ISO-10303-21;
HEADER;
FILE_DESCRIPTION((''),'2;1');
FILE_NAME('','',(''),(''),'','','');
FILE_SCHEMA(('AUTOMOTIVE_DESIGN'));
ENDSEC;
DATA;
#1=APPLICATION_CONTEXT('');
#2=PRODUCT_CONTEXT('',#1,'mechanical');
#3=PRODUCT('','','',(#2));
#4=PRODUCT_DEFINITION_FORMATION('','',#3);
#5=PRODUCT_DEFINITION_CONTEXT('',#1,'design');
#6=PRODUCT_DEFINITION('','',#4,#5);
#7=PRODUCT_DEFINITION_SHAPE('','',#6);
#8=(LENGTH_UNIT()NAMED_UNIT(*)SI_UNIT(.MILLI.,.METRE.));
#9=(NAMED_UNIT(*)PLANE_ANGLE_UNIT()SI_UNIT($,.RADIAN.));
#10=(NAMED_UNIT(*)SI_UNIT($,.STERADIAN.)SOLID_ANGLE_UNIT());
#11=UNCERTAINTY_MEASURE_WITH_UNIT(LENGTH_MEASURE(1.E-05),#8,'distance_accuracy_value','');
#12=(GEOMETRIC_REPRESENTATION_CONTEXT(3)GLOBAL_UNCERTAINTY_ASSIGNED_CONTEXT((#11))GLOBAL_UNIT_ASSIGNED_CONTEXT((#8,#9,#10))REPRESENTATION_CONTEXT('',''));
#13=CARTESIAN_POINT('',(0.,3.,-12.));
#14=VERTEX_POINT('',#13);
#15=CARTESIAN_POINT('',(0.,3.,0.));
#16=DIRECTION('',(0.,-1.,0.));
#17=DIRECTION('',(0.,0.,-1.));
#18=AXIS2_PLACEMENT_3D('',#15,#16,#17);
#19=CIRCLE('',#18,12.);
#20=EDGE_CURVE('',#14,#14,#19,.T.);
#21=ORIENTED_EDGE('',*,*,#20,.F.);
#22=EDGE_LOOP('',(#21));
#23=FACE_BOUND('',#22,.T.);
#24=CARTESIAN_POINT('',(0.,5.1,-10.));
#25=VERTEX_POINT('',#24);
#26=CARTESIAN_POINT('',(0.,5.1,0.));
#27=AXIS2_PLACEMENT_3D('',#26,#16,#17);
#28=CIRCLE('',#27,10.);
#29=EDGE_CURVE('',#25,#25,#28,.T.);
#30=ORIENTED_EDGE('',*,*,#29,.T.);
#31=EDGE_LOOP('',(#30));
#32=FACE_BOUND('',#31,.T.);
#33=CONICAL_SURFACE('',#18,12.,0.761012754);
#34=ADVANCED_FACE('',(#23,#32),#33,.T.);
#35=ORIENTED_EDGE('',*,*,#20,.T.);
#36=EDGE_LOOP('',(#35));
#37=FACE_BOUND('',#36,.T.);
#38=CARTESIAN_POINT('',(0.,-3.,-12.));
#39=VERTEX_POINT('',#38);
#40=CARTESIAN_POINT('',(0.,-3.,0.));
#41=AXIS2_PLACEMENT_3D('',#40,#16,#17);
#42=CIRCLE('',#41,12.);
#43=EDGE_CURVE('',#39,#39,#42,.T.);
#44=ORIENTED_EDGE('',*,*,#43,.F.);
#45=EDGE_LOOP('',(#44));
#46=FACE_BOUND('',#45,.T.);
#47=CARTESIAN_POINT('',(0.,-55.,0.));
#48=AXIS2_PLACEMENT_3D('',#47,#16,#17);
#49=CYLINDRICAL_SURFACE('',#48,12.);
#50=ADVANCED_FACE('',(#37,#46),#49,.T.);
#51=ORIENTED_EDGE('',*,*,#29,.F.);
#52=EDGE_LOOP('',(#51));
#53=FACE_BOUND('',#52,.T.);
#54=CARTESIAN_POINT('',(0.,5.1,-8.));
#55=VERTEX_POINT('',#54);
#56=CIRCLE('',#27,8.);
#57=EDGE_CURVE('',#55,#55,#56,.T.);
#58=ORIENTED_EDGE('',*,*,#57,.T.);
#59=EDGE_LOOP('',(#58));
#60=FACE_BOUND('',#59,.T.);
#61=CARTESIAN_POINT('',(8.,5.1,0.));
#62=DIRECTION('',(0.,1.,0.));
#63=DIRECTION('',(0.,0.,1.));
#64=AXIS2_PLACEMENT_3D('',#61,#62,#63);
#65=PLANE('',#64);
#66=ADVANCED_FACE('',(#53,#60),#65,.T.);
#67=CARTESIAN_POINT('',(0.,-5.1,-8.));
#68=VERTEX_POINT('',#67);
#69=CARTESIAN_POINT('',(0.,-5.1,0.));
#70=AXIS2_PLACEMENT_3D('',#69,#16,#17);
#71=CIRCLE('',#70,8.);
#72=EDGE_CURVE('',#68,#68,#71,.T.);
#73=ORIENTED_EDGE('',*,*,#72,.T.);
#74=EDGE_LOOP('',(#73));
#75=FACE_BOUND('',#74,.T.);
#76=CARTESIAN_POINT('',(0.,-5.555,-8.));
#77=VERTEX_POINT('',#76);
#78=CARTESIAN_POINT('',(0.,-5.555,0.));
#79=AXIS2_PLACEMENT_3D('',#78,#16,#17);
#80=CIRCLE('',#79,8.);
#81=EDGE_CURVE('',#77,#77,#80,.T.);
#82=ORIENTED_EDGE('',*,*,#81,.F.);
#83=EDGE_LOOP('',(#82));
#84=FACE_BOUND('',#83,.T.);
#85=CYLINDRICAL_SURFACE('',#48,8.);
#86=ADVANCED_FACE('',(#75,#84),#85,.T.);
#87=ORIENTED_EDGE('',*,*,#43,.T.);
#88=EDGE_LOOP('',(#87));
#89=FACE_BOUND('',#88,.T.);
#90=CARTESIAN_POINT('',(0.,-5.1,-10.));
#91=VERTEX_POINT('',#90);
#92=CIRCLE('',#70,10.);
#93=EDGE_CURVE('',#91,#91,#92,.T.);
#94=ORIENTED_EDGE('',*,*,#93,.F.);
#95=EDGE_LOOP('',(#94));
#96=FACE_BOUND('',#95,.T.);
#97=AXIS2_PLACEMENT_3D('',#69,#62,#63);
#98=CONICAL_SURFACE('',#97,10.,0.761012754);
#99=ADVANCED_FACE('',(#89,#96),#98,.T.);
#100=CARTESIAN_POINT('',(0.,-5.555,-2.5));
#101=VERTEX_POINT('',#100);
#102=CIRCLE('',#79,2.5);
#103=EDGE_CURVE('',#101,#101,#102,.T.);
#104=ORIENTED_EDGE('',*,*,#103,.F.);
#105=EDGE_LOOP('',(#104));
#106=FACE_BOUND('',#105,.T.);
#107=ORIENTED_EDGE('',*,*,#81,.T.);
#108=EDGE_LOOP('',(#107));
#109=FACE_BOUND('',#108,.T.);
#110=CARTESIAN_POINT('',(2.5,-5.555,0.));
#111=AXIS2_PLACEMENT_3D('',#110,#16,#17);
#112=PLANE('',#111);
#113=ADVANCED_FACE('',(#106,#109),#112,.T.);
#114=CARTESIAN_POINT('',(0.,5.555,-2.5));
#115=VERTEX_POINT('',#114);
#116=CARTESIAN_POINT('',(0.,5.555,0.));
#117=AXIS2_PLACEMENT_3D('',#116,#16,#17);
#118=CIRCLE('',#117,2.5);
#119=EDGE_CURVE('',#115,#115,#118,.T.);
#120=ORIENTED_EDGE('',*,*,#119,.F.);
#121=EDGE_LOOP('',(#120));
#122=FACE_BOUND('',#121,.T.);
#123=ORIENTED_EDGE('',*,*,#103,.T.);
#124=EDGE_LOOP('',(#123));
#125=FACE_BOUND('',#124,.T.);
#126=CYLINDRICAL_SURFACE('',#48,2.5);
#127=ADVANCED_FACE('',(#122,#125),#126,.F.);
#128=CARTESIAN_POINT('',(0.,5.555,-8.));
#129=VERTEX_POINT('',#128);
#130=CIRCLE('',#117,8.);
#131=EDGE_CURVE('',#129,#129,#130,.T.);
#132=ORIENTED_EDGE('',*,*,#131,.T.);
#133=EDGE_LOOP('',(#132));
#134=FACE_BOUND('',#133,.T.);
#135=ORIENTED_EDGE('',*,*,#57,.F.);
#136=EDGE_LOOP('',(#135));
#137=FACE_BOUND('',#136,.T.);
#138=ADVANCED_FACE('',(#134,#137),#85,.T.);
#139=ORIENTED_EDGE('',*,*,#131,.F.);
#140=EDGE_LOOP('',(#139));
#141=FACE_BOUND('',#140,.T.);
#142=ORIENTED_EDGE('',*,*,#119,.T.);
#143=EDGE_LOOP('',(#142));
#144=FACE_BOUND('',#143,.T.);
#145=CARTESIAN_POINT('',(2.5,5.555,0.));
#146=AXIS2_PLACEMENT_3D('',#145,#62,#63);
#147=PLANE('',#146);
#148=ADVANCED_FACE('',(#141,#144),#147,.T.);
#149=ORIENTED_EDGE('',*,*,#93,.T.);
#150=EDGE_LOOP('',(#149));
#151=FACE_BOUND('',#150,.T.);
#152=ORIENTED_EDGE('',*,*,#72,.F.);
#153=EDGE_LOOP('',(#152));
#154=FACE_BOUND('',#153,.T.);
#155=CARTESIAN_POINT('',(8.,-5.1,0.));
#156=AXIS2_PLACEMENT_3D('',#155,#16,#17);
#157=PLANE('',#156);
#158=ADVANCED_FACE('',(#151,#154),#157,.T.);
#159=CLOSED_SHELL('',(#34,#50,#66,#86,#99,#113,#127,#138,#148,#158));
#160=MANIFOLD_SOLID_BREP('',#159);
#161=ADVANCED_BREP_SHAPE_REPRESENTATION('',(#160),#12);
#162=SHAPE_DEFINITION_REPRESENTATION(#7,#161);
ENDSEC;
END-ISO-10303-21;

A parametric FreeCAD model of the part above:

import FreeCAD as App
import Part
import Sketcher
from FreeCAD import Vector
Q = App.Units.Quantity


def add_polygon(sketch, points):
    """Adds a closed chain of lines whose ends are joined by coincident constraints."""
    first, n = sketch.GeometryCount, len(points)
    for a, b in zip(points, points[1:] + points[:1]):
        sketch.addGeometry(Part.LineSegment(App.Vector(*a, 0), App.Vector(*b, 0)), False)
    for i in range(n):
        sketch.addConstraint(Sketcher.Constraint("Coincident", first + i, 2, first + (i + 1) % n, 1))

doc = App.newDocument("Part")
body = doc.addObject("PartDesign::Body", "Body")

sketch1 = body.newObject("Sketcher::SketchObject", "Sketch")
sketch1.AttachmentSupport = (doc.getObject("XY_Plane"), [""])
sketch1.MapMode = "FlatFace"
add_polygon(sketch1, [(2.5, 5.55), (2.5, -5.55), (8, -5.55), (8, -5.1), (10, -5.1), (12, -3), (12, 3), (10, 5.1), (8, 5.1), (8, 5.55)])
sketch1.addConstraint([
    Sketcher.Constraint("Vertical", 0),
    Sketcher.Constraint("Horizontal", 1),
    Sketcher.Constraint("Vertical", 2),
    Sketcher.Constraint("Horizontal", 3),
    Sketcher.Constraint("Vertical", 5),
    Sketcher.Constraint("Horizontal", 7),
    Sketcher.Constraint("Vertical", 8),
    Sketcher.Constraint("Horizontal", 9),
    Sketcher.Constraint("Symmetric", 3, 2, 6, 2, -1),
    Sketcher.Constraint("Symmetric", 1, 2, 8, 2, -1),
    Sketcher.Constraint("Equal", 4, 6),
    Sketcher.Constraint("DistanceX", 3, 1, 3, 2, Q("2 mm")),
    Sketcher.Constraint("DistanceY", 5, 1, 5, 2, Q("6 mm")),
    Sketcher.Constraint("DistanceX", 1, 1, 1, 2, Q("5.5 mm")),
    Sketcher.Constraint("DistanceX", -1, 1, 1, 2, Q("8 mm")),
    Sketcher.Constraint("DistanceX", -1, 1, 4, 2, Q("12 mm")),
    Sketcher.Constraint("Distance", 4, Q("2.9 mm")),
    Sketcher.Constraint("DistanceY", 0, 2, 0, 1, Q("11.11 mm")),
])
revolution = body.newObject("PartDesign::Revolution", "Revolution")
revolution.Profile = sketch1
revolution.ReferenceAxis = (sketch1, ["V_Axis"])
revolution.Angle = 360

doc.recompute()
